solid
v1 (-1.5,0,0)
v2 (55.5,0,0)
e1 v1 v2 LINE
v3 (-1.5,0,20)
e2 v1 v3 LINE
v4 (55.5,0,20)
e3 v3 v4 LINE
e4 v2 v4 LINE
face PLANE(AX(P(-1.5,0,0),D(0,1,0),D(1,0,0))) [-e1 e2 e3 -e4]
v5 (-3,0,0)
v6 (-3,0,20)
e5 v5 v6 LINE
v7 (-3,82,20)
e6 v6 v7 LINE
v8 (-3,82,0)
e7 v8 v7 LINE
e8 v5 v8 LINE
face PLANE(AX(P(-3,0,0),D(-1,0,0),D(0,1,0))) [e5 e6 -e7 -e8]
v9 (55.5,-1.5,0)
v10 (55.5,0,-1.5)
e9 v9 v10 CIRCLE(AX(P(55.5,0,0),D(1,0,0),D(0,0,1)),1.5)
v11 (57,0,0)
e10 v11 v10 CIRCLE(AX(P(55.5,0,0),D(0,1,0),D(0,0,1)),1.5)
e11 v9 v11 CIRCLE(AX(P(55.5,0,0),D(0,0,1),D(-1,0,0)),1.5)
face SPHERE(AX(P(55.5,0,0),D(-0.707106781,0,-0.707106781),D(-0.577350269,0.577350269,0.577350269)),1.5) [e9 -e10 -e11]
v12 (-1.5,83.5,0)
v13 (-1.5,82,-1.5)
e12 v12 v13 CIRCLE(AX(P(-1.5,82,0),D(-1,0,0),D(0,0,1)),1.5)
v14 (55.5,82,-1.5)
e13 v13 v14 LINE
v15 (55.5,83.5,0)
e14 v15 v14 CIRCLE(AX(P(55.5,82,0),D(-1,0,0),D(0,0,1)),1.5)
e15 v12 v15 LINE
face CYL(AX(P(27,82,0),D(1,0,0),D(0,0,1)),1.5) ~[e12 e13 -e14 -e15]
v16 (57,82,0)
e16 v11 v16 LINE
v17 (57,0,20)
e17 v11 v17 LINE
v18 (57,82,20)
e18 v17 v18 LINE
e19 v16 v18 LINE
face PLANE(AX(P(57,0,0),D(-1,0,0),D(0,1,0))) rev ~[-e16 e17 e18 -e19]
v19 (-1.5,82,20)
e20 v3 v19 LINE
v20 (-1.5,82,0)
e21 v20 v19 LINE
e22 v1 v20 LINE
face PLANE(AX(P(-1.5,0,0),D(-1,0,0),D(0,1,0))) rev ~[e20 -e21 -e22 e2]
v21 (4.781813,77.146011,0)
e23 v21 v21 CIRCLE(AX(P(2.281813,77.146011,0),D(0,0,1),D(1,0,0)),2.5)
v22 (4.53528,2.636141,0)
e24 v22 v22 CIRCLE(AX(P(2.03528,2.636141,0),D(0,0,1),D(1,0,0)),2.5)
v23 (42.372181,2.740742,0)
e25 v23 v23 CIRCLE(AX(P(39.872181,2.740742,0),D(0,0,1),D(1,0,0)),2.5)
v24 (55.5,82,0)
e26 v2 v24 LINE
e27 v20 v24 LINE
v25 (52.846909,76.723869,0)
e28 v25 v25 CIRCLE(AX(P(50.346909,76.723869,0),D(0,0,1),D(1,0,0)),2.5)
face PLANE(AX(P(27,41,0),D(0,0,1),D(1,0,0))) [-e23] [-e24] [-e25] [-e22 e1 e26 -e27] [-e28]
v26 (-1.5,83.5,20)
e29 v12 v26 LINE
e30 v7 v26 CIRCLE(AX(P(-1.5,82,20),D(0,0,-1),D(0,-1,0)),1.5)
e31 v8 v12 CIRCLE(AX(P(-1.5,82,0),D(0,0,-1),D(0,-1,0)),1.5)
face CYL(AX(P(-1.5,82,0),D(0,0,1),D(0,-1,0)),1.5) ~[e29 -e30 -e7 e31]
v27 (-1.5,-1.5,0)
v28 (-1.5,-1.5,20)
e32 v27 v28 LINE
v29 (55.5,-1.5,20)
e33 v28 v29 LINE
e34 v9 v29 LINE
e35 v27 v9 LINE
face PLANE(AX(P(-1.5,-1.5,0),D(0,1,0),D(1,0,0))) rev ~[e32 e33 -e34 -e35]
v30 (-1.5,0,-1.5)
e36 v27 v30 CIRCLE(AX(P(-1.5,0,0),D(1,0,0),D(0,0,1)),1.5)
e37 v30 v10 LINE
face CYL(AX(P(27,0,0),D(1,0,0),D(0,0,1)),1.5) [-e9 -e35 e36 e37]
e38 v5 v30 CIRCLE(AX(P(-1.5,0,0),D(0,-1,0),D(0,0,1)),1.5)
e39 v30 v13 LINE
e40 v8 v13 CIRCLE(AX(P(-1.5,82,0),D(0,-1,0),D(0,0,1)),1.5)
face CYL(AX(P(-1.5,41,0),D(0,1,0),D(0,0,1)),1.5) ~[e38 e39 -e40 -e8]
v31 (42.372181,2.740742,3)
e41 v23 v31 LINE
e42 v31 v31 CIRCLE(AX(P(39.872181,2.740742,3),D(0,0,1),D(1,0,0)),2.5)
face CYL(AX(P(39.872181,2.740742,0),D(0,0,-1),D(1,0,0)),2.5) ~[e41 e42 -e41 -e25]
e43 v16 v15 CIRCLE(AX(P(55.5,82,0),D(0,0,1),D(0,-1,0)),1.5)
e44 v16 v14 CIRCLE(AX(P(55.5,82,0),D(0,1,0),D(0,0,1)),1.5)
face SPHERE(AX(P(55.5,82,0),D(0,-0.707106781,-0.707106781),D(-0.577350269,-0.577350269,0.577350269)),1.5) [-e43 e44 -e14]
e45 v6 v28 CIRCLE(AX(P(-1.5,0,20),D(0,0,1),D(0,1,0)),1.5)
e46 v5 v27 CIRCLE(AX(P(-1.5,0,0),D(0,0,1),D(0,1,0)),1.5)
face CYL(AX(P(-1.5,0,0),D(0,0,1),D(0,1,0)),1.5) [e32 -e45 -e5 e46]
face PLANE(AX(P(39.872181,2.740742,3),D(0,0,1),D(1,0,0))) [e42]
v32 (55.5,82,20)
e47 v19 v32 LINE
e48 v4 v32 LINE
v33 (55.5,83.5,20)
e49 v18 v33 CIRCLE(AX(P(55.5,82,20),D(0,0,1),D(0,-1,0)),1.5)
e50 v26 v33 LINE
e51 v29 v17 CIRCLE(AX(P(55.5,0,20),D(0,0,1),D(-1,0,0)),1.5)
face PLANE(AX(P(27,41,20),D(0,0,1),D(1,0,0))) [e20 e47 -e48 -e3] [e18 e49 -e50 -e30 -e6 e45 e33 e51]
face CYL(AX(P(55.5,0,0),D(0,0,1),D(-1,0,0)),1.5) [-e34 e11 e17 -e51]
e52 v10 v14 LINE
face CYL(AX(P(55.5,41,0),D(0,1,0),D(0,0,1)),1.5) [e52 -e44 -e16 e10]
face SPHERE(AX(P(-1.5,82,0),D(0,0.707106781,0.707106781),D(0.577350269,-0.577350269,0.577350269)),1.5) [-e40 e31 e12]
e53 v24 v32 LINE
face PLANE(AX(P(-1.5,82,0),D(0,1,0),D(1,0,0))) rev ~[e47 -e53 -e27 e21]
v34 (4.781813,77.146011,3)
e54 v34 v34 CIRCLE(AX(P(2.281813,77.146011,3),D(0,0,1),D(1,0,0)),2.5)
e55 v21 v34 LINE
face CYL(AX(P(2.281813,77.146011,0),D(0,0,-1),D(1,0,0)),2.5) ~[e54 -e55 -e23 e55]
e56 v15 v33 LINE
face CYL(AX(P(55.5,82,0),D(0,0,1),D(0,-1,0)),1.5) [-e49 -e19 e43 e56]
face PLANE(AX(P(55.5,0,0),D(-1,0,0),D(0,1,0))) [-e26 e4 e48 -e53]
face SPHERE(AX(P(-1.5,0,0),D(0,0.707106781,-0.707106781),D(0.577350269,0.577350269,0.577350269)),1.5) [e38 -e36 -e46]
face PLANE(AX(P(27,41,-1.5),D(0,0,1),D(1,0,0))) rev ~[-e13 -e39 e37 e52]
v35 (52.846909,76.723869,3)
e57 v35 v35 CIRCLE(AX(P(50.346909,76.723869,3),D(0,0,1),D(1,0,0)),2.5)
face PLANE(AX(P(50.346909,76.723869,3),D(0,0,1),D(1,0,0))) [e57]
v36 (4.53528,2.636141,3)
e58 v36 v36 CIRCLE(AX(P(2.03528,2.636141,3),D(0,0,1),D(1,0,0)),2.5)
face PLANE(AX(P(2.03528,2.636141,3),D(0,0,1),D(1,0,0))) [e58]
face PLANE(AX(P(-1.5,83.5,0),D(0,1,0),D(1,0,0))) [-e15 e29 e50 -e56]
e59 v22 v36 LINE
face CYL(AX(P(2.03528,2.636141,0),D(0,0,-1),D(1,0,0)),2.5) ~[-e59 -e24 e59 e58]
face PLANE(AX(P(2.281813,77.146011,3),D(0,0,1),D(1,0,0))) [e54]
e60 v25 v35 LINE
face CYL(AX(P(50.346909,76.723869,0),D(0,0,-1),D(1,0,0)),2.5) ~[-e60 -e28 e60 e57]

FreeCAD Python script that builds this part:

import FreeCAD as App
import Part
import Sketcher
from FreeCAD import Vector


def faces_at(feature, points):
    """Names of the faces that lie closest to the given points."""
    faces = feature.Shape.Faces
    near = lambda p: min(range(len(faces)), key=lambda i: faces[i].distToShape(Part.Vertex(*p))[0])
    return sorted({f"Face{near(p) + 1}" for p in points})

doc = App.newDocument("Part")
body = doc.addObject("PartDesign::Body", "Body")

# Sketch on XY plane
sketch1 = body.newObject("Sketcher::SketchObject", "Sketch")
sketch1.AttachmentSupport = (doc.getObject("XY_Plane"), [""])
sketch1.MapMode = "FlatFace"
sketch1.addGeometry([
    Part.LineSegment(Vector(0, 82, 0), Vector(0, 0, 0)),
    Part.LineSegment(Vector(0, 0, 0), Vector(57, 0, 0)),
    Part.LineSegment(Vector(57, 0, 0), Vector(57, 82, 0)),
    Part.LineSegment(Vector(57, 82, 0), Vector(0, 82, 0)),
], False)
sketch1.addConstraint([
    Sketcher.Constraint("Coincident", 0, 2, 1, 1),
    Sketcher.Constraint("Coincident", 1, 2, 2, 1),
    Sketcher.Constraint("Coincident", 2, 2, 3, 1),
    Sketcher.Constraint("Coincident", 3, 2, 0, 1),
    Sketcher.Constraint("Vertical", 0),
    Sketcher.Constraint("Horizontal", 1),
    Sketcher.Constraint("Vertical", 2),
    Sketcher.Constraint("Horizontal", 3),
    Sketcher.Constraint("Coincident", 0, 2, -1, 1),
    Sketcher.Constraint("DistanceX", 1, 1, 1, 2, 57.0),
    Sketcher.Constraint("DistanceY", 0, 2, 0, 1, 82.0),
])
pad1 = body.newObject("PartDesign::Pad", "Pad")
pad1.Profile = sketch1
pad1.Length = 20
doc.recompute()

thickness = body.newObject("PartDesign::Thickness", "Thickness")
thickness.Base = (pad1, faces_at(pad1, [(28.5, 41, 20)]))
thickness.Value = 1.5
thickness.Reversed = False
thickness.Join = "Arc"
body2 = doc.addObject("PartDesign::Body", "Body001")
doc.recompute()

body.Placement = App.Placement(Vector(-1.5, 0, 0), App.Rotation(Vector(0, 0, 1), 0))
boolean = body2.newObject("PartDesign::Boolean", "Boolean")
boolean.Type = "Fuse"
boolean.addObjects([body])

# Sketch on XY plane
sketch2 = body2.newObject("Sketcher::SketchObject", "Sketch001")
sketch2.AttachmentSupport = (doc.getObject("XY_Plane001"), [""])
sketch2.MapMode = "FlatFace"
sketch2.addGeometry([
    Part.Circle(Vector(2.03528, 2.636141, 0), Vector(0, 0, 1), 2.5),
    Part.Circle(Vector(39.872181, 2.740742, 0), Vector(0, 0, 1), 2.5),
    Part.Circle(Vector(2.281813, 77.146011, 0), Vector(0, 0, 1), 2.5),
    Part.Circle(Vector(50.346909, 76.723869, 0), Vector(0, 0, 1), 2.5),
], False)
sketch2.addConstraint([
    Sketcher.Constraint("Equal", 0, 1),
    Sketcher.Constraint("Equal", 1, 2),
    Sketcher.Constraint("Equal", 2, 3),
    Sketcher.Constraint("Diameter", 0, 5.0),
    Sketcher.Constraint("DistanceX", 0, 3, 1, 3, 37.836901),
    Sketcher.Constraint("DistanceY", 0, 3, 1, 3, 0.104601),
    Sketcher.Constraint("DistanceX", -1, 1, 0, 3, 2.03528),
    Sketcher.Constraint("DistanceY", -1, 1, 0, 3, 2.636141),
    Sketcher.Constraint("DistanceY", -1, 1, 2, 3, 77.146011),
    Sketcher.Constraint("DistanceX", -1, 1, 3, 3, 50.346909),
    Sketcher.Constraint("DistanceY", -1, 1, 3, 3, 76.723869),
    Sketcher.Constraint("DistanceX", -1, 1, 2, 3, 2.281813),
])
pad2 = body2.newObject("PartDesign::Pad", "Pad001")
pad2.Profile = sketch2
pad2.Length = 3

doc.recompute()
